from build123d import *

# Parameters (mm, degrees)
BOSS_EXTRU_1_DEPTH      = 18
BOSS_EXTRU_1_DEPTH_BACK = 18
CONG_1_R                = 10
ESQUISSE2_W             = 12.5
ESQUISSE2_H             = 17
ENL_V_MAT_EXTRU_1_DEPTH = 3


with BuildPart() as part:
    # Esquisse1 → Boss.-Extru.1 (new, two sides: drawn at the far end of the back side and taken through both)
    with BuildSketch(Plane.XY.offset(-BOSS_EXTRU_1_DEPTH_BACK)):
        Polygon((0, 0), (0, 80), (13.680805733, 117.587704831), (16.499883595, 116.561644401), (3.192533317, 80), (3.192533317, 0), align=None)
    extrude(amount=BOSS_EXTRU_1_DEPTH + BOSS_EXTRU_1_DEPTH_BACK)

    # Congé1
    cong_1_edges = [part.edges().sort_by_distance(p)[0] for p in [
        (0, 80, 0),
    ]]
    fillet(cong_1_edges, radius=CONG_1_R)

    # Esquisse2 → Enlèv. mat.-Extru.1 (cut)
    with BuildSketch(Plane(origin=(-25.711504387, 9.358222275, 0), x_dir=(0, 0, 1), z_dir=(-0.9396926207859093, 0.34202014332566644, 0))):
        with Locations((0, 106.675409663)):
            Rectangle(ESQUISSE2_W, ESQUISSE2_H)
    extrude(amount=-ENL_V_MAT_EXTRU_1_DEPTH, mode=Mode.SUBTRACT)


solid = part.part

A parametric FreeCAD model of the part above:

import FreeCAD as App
import Part
import Sketcher
from FreeCAD import Vector
Q = App.Units.Quantity


def edges_at(feature, points):
    """Names of the edges that pass closest to the given points."""
    edges = feature.Shape.Edges
    near = lambda p: min(range(len(edges)), key=lambda i: edges[i].distToShape(Part.Vertex(*p))[0])
    return sorted({f"Edge{near(p) + 1}" for p in points})

doc = App.newDocument("Part")
body = doc.addObject("PartDesign::Body", "Body")

sketch1 = body.newObject("Sketcher::SketchObject", "Sketch")
sketch1.AttachmentSupport = (doc.getObject("XY_Plane"), [""])
sketch1.MapMode = "FlatFace"
sketch1.addGeometry(Part.LineSegment(Vector(0, 80, 0), Vector(0, 0, 0)), False)
sketch1.addGeometry(Part.LineSegment(Vector(0, 0, 0), Vector(3.2, 0, 0)), False)
sketch1.addGeometry(Part.LineSegment(Vector(3.2, 0, 0), Vector(3.2, 80, 0)), False)
sketch1.addGeometry(Part.LineSegment(Vector(3.2, 80, 0), Vector(16.5, 116.6, 0)), False)
sketch1.addGeometry(Part.LineSegment(Vector(16.5, 116.6, 0), Vector(13.7, 117.6, 0)), False)
sketch1.addGeometry(Part.LineSegment(Vector(13.7, 117.6, 0), Vector(0, 80, 0)), False)
sketch1.addConstraint(Sketcher.Constraint("Coincident", 0, 2, 1, 1))
sketch1.addConstraint(Sketcher.Constraint("Coincident", 1, 2, 2, 1))
sketch1.addConstraint(Sketcher.Constraint("Coincident", 2, 2, 3, 1))
sketch1.addConstraint(Sketcher.Constraint("Coincident", 3, 2, 4, 1))
sketch1.addConstraint(Sketcher.Constraint("Coincident", 4, 2, 5, 1))
sketch1.addConstraint(Sketcher.Constraint("Coincident", 5, 2, 0, 1))
sketch1.addConstraint(Sketcher.Constraint("Vertical", 0))
sketch1.addConstraint(Sketcher.Constraint("Horizontal", 1))
sketch1.addConstraint(Sketcher.Constraint("Vertical", 2))
sketch1.addConstraint(Sketcher.Constraint("Coincident", 0, 2, -1, 1))
sketch1.addConstraint(Sketcher.Constraint("Perpendicular", 3, 4))
sketch1.addConstraint(Sketcher.Constraint("Perpendicular", 4, 5))
sketch1.addConstraint(Sketcher.Constraint("Horizontal", 2, 2, 5, 2))
sketch1.addConstraint(Sketcher.Constraint("DistanceY", 0, 2, 0, 1, 80.0))
sketch1.addConstraint(Sketcher.Constraint("Angle", 3, Q("70 deg")))
sketch1.addConstraint(Sketcher.Constraint("Distance", 4, 3.0))
sketch1.addConstraint(Sketcher.Constraint("Distance", 5, 40.0))
pad1 = body.newObject("PartDesign::Pad", "Pad")
pad1.Profile = sketch1
pad1.Type = "TwoLengths"
pad1.Length = 18
pad1.Length2 = 18
doc.recompute()

fillet = body.newObject("PartDesign::Fillet", "Fillet")
fillet.Base = (pad1, edges_at(pad1, [(0, 80, 0)]))
fillet.Radius = 10

sketch2 = body.newObject("Sketcher::SketchObject", "Sketch001")
sketch2.Placement = App.Placement(Vector(-25.711504, 9.358222, 0), App.Rotation(Vector(0, 0, 1), Vector(0.342020143, 0.939692621, 0), Vector(-0.939692621, 0.342020143, 0), "ZXY"))
sketch2.addGeometry(Part.LineSegment(Vector(-6, 115, 0), Vector(-6, 98, 0)), False)
sketch2.addGeometry(Part.LineSegment(Vector(-6, 98, 0), Vector(6, 98, 0)), False)
sketch2.addGeometry(Part.LineSegment(Vector(6, 98, 0), Vector(6, 115, 0)), False)
sketch2.addGeometry(Part.LineSegment(Vector(6, 115, 0), Vector(-6, 115, 0)), False)
sketch2.addConstraint(Sketcher.Constraint("Coincident", 0, 2, 1, 1))
sketch2.addConstraint(Sketcher.Constraint("Coincident", 1, 2, 2, 1))
sketch2.addConstraint(Sketcher.Constraint("Coincident", 2, 2, 3, 1))
sketch2.addConstraint(Sketcher.Constraint("Coincident", 3, 2, 0, 1))
sketch2.addConstraint(Sketcher.Constraint("Vertical", 0))
sketch2.addConstraint(Sketcher.Constraint("Horizontal", 1))
sketch2.addConstraint(Sketcher.Constraint("Vertical", 2))
sketch2.addConstraint(Sketcher.Constraint("Horizontal", 3))
sketch2.addConstraint(Sketcher.Constraint("DistanceY", 0, 2, 0, 1, 17.0))
sketch2.addConstraint(Sketcher.Constraint("DistanceX", 1, 1, 1, 2, 12.5))
sketch2.addConstraint(Sketcher.Constraint("DistanceX", 0, 2, -1, 1, 6.25))
sketch2.addConstraint(Sketcher.Constraint("DistanceY", -1, 1, 0, 2, 98.17541))
pocket1 = body.newObject("PartDesign::Pocket", "Pocket")
pocket1.Profile = sketch2
pocket1.Length = 3

doc.recompute()
